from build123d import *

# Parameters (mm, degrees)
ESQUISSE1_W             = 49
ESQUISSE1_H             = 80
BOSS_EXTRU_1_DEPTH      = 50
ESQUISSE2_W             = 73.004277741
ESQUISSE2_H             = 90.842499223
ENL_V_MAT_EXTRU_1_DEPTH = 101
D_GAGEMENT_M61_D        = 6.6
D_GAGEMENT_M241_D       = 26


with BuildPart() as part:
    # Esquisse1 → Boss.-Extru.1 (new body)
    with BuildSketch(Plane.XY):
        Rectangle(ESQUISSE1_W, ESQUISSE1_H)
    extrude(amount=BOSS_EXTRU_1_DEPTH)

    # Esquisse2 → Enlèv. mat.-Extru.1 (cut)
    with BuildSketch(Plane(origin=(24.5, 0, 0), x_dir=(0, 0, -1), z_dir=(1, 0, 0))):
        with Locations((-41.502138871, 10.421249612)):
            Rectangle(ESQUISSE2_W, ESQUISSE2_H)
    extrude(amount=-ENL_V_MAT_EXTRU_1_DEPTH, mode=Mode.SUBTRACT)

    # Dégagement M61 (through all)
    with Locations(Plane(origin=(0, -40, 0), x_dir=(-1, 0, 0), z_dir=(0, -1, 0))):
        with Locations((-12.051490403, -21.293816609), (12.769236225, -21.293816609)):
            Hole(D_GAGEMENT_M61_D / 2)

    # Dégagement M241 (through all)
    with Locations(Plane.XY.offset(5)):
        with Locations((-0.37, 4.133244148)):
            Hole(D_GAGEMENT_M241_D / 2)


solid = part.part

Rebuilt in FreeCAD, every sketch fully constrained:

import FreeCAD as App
import Part
import Sketcher
from FreeCAD import Vector


def add_polygon(sketch, points):
    """Adds a closed chain of lines whose ends are joined by coincident constraints."""
    first, n = sketch.GeometryCount, len(points)
    for a, b in zip(points, points[1:] + points[:1]):
        sketch.addGeometry(Part.LineSegment(App.Vector(*a, 0), App.Vector(*b, 0)), False)
    for i in range(n):
        sketch.addConstraint(Sketcher.Constraint("Coincident", first + i, 2, first + (i + 1) % n, 1))

doc = App.newDocument("Part")
body = doc.addObject("PartDesign::Body", "Body")

# Sketch on XY plane
sketch1 = body.newObject("Sketcher::SketchObject", "Sketch")
sketch1.AttachmentSupport = (doc.getObject("XY_Plane"), [""])
sketch1.MapMode = "FlatFace"
add_polygon(sketch1, [(-24, 40), (-24, -40), (24, -40), (24, 40)])  # lines 0-3
sketch1.addConstraint([
    Sketcher.Constraint("Vertical", 0),
    Sketcher.Constraint("Horizontal", 1),
    Sketcher.Constraint("Vertical", 2),
    Sketcher.Constraint("Horizontal", 3),
    Sketcher.Constraint("Symmetric", 0, 2, 2, 2, -1, 1),
    Sketcher.Constraint("DistanceX", 1, 1, 1, 2, 49.0),
    Sketcher.Constraint("DistanceY", 0, 2, 0, 1, 80.0),
])
pad1 = body.newObject("PartDesign::Pad", "Pad")
pad1.Profile = sketch1
pad1.Length = 50

# Sketch on YZ plane
sketch2 = body.newObject("Sketcher::SketchObject", "Sketch001")
sketch2.AttachmentSupport = (doc.getObject("YZ_Plane"), [""])
sketch2.MapMode = "FlatFace"
sketch2.AttachmentOffset = App.Placement(Vector(0, 0, 24.5), App.Rotation())
add_polygon(sketch2, [(56, 78), (-35, 78), (-35, 5), (56, 5)])  # lines 0-3
sketch2.addConstraint([
    Sketcher.Constraint("Horizontal", 0),
    Sketcher.Constraint("Vertical", 1),
    Sketcher.Constraint("Horizontal", 2),
    Sketcher.Constraint("Vertical", 3),
    Sketcher.Constraint("DistanceX", 0, 2, -1, 1, 35.0),
    Sketcher.Constraint("DistanceY", -1, 1, 1, 2, 5.0),
    Sketcher.Constraint("DistanceX", 0, 2, 0, 1, 90.842499),
    Sketcher.Constraint("DistanceY", 1, 2, 1, 1, 73.004278),
])
pocket1 = body.newObject("PartDesign::Pocket", "Pocket")
pocket1.Profile = sketch2
pocket1.Length = 101

# Sketch on XZ plane
sketch3 = body.newObject("Sketcher::SketchObject", "Sketch002")
sketch3.AttachmentSupport = (doc.getObject("XZ_Plane"), [""])
sketch3.MapMode = "FlatFace"
sketch3.AttachmentOffset = App.Placement(Vector(0, 0, 40), App.Rotation())
sketch3.addGeometry([
    Part.Circle(Vector(12.1, 21.3, 0), Vector(0, 0, 1), 3.3),
    Part.Circle(Vector(-12.8, 21.3, 0), Vector(0, 0, 1), 3.3),
], False)
sketch3.addConstraint([
    Sketcher.Constraint("Equal", 0, 1),
    Sketcher.Constraint("Horizontal", 0, 3, 1, 3),
    Sketcher.Constraint("Diameter", 0, 6.6),
    Sketcher.Constraint("DistanceX", -1, 1, 0, 3, 12.05149),
    Sketcher.Constraint("DistanceY", -1, 1, 0, 3, 21.293817),
    Sketcher.Constraint("DistanceX", 1, 3, -1, 1, 12.769236),
])
doc.recompute()
hole = body.newObject("PartDesign::Hole", "Hole")
hole.Profile = sketch3
hole.ThreadType = "None"
hole.Diameter = 6.6
hole.DepthType = "ThroughAll"

# Sketch on XY plane
sketch4 = body.newObject("Sketcher::SketchObject", "Sketch003")
sketch4.AttachmentSupport = (doc.getObject("XY_Plane"), [""])
sketch4.MapMode = "FlatFace"
sketch4.AttachmentOffset = App.Placement(Vector(0, 0, 5), App.Rotation())
sketch4.addGeometry(Part.Circle(Vector(0, 4, 0), Vector(0, 0, 1), 13), False)
sketch4.addConstraint([
    Sketcher.Constraint("Diameter", 0, 26.0),
    Sketcher.Constraint("DistanceX", 0, 3, -1, 1, 0.37),
    Sketcher.Constraint("DistanceY", -1, 1, 0, 3, 4.133244),
])
doc.recompute()
hole2 = body.newObject("PartDesign::Hole", "Hole001")
hole2.Profile = sketch4
hole2.ThreadType = "None"
hole2.Diameter = 26
hole2.DepthType = "ThroughAll"

doc.recompute()
